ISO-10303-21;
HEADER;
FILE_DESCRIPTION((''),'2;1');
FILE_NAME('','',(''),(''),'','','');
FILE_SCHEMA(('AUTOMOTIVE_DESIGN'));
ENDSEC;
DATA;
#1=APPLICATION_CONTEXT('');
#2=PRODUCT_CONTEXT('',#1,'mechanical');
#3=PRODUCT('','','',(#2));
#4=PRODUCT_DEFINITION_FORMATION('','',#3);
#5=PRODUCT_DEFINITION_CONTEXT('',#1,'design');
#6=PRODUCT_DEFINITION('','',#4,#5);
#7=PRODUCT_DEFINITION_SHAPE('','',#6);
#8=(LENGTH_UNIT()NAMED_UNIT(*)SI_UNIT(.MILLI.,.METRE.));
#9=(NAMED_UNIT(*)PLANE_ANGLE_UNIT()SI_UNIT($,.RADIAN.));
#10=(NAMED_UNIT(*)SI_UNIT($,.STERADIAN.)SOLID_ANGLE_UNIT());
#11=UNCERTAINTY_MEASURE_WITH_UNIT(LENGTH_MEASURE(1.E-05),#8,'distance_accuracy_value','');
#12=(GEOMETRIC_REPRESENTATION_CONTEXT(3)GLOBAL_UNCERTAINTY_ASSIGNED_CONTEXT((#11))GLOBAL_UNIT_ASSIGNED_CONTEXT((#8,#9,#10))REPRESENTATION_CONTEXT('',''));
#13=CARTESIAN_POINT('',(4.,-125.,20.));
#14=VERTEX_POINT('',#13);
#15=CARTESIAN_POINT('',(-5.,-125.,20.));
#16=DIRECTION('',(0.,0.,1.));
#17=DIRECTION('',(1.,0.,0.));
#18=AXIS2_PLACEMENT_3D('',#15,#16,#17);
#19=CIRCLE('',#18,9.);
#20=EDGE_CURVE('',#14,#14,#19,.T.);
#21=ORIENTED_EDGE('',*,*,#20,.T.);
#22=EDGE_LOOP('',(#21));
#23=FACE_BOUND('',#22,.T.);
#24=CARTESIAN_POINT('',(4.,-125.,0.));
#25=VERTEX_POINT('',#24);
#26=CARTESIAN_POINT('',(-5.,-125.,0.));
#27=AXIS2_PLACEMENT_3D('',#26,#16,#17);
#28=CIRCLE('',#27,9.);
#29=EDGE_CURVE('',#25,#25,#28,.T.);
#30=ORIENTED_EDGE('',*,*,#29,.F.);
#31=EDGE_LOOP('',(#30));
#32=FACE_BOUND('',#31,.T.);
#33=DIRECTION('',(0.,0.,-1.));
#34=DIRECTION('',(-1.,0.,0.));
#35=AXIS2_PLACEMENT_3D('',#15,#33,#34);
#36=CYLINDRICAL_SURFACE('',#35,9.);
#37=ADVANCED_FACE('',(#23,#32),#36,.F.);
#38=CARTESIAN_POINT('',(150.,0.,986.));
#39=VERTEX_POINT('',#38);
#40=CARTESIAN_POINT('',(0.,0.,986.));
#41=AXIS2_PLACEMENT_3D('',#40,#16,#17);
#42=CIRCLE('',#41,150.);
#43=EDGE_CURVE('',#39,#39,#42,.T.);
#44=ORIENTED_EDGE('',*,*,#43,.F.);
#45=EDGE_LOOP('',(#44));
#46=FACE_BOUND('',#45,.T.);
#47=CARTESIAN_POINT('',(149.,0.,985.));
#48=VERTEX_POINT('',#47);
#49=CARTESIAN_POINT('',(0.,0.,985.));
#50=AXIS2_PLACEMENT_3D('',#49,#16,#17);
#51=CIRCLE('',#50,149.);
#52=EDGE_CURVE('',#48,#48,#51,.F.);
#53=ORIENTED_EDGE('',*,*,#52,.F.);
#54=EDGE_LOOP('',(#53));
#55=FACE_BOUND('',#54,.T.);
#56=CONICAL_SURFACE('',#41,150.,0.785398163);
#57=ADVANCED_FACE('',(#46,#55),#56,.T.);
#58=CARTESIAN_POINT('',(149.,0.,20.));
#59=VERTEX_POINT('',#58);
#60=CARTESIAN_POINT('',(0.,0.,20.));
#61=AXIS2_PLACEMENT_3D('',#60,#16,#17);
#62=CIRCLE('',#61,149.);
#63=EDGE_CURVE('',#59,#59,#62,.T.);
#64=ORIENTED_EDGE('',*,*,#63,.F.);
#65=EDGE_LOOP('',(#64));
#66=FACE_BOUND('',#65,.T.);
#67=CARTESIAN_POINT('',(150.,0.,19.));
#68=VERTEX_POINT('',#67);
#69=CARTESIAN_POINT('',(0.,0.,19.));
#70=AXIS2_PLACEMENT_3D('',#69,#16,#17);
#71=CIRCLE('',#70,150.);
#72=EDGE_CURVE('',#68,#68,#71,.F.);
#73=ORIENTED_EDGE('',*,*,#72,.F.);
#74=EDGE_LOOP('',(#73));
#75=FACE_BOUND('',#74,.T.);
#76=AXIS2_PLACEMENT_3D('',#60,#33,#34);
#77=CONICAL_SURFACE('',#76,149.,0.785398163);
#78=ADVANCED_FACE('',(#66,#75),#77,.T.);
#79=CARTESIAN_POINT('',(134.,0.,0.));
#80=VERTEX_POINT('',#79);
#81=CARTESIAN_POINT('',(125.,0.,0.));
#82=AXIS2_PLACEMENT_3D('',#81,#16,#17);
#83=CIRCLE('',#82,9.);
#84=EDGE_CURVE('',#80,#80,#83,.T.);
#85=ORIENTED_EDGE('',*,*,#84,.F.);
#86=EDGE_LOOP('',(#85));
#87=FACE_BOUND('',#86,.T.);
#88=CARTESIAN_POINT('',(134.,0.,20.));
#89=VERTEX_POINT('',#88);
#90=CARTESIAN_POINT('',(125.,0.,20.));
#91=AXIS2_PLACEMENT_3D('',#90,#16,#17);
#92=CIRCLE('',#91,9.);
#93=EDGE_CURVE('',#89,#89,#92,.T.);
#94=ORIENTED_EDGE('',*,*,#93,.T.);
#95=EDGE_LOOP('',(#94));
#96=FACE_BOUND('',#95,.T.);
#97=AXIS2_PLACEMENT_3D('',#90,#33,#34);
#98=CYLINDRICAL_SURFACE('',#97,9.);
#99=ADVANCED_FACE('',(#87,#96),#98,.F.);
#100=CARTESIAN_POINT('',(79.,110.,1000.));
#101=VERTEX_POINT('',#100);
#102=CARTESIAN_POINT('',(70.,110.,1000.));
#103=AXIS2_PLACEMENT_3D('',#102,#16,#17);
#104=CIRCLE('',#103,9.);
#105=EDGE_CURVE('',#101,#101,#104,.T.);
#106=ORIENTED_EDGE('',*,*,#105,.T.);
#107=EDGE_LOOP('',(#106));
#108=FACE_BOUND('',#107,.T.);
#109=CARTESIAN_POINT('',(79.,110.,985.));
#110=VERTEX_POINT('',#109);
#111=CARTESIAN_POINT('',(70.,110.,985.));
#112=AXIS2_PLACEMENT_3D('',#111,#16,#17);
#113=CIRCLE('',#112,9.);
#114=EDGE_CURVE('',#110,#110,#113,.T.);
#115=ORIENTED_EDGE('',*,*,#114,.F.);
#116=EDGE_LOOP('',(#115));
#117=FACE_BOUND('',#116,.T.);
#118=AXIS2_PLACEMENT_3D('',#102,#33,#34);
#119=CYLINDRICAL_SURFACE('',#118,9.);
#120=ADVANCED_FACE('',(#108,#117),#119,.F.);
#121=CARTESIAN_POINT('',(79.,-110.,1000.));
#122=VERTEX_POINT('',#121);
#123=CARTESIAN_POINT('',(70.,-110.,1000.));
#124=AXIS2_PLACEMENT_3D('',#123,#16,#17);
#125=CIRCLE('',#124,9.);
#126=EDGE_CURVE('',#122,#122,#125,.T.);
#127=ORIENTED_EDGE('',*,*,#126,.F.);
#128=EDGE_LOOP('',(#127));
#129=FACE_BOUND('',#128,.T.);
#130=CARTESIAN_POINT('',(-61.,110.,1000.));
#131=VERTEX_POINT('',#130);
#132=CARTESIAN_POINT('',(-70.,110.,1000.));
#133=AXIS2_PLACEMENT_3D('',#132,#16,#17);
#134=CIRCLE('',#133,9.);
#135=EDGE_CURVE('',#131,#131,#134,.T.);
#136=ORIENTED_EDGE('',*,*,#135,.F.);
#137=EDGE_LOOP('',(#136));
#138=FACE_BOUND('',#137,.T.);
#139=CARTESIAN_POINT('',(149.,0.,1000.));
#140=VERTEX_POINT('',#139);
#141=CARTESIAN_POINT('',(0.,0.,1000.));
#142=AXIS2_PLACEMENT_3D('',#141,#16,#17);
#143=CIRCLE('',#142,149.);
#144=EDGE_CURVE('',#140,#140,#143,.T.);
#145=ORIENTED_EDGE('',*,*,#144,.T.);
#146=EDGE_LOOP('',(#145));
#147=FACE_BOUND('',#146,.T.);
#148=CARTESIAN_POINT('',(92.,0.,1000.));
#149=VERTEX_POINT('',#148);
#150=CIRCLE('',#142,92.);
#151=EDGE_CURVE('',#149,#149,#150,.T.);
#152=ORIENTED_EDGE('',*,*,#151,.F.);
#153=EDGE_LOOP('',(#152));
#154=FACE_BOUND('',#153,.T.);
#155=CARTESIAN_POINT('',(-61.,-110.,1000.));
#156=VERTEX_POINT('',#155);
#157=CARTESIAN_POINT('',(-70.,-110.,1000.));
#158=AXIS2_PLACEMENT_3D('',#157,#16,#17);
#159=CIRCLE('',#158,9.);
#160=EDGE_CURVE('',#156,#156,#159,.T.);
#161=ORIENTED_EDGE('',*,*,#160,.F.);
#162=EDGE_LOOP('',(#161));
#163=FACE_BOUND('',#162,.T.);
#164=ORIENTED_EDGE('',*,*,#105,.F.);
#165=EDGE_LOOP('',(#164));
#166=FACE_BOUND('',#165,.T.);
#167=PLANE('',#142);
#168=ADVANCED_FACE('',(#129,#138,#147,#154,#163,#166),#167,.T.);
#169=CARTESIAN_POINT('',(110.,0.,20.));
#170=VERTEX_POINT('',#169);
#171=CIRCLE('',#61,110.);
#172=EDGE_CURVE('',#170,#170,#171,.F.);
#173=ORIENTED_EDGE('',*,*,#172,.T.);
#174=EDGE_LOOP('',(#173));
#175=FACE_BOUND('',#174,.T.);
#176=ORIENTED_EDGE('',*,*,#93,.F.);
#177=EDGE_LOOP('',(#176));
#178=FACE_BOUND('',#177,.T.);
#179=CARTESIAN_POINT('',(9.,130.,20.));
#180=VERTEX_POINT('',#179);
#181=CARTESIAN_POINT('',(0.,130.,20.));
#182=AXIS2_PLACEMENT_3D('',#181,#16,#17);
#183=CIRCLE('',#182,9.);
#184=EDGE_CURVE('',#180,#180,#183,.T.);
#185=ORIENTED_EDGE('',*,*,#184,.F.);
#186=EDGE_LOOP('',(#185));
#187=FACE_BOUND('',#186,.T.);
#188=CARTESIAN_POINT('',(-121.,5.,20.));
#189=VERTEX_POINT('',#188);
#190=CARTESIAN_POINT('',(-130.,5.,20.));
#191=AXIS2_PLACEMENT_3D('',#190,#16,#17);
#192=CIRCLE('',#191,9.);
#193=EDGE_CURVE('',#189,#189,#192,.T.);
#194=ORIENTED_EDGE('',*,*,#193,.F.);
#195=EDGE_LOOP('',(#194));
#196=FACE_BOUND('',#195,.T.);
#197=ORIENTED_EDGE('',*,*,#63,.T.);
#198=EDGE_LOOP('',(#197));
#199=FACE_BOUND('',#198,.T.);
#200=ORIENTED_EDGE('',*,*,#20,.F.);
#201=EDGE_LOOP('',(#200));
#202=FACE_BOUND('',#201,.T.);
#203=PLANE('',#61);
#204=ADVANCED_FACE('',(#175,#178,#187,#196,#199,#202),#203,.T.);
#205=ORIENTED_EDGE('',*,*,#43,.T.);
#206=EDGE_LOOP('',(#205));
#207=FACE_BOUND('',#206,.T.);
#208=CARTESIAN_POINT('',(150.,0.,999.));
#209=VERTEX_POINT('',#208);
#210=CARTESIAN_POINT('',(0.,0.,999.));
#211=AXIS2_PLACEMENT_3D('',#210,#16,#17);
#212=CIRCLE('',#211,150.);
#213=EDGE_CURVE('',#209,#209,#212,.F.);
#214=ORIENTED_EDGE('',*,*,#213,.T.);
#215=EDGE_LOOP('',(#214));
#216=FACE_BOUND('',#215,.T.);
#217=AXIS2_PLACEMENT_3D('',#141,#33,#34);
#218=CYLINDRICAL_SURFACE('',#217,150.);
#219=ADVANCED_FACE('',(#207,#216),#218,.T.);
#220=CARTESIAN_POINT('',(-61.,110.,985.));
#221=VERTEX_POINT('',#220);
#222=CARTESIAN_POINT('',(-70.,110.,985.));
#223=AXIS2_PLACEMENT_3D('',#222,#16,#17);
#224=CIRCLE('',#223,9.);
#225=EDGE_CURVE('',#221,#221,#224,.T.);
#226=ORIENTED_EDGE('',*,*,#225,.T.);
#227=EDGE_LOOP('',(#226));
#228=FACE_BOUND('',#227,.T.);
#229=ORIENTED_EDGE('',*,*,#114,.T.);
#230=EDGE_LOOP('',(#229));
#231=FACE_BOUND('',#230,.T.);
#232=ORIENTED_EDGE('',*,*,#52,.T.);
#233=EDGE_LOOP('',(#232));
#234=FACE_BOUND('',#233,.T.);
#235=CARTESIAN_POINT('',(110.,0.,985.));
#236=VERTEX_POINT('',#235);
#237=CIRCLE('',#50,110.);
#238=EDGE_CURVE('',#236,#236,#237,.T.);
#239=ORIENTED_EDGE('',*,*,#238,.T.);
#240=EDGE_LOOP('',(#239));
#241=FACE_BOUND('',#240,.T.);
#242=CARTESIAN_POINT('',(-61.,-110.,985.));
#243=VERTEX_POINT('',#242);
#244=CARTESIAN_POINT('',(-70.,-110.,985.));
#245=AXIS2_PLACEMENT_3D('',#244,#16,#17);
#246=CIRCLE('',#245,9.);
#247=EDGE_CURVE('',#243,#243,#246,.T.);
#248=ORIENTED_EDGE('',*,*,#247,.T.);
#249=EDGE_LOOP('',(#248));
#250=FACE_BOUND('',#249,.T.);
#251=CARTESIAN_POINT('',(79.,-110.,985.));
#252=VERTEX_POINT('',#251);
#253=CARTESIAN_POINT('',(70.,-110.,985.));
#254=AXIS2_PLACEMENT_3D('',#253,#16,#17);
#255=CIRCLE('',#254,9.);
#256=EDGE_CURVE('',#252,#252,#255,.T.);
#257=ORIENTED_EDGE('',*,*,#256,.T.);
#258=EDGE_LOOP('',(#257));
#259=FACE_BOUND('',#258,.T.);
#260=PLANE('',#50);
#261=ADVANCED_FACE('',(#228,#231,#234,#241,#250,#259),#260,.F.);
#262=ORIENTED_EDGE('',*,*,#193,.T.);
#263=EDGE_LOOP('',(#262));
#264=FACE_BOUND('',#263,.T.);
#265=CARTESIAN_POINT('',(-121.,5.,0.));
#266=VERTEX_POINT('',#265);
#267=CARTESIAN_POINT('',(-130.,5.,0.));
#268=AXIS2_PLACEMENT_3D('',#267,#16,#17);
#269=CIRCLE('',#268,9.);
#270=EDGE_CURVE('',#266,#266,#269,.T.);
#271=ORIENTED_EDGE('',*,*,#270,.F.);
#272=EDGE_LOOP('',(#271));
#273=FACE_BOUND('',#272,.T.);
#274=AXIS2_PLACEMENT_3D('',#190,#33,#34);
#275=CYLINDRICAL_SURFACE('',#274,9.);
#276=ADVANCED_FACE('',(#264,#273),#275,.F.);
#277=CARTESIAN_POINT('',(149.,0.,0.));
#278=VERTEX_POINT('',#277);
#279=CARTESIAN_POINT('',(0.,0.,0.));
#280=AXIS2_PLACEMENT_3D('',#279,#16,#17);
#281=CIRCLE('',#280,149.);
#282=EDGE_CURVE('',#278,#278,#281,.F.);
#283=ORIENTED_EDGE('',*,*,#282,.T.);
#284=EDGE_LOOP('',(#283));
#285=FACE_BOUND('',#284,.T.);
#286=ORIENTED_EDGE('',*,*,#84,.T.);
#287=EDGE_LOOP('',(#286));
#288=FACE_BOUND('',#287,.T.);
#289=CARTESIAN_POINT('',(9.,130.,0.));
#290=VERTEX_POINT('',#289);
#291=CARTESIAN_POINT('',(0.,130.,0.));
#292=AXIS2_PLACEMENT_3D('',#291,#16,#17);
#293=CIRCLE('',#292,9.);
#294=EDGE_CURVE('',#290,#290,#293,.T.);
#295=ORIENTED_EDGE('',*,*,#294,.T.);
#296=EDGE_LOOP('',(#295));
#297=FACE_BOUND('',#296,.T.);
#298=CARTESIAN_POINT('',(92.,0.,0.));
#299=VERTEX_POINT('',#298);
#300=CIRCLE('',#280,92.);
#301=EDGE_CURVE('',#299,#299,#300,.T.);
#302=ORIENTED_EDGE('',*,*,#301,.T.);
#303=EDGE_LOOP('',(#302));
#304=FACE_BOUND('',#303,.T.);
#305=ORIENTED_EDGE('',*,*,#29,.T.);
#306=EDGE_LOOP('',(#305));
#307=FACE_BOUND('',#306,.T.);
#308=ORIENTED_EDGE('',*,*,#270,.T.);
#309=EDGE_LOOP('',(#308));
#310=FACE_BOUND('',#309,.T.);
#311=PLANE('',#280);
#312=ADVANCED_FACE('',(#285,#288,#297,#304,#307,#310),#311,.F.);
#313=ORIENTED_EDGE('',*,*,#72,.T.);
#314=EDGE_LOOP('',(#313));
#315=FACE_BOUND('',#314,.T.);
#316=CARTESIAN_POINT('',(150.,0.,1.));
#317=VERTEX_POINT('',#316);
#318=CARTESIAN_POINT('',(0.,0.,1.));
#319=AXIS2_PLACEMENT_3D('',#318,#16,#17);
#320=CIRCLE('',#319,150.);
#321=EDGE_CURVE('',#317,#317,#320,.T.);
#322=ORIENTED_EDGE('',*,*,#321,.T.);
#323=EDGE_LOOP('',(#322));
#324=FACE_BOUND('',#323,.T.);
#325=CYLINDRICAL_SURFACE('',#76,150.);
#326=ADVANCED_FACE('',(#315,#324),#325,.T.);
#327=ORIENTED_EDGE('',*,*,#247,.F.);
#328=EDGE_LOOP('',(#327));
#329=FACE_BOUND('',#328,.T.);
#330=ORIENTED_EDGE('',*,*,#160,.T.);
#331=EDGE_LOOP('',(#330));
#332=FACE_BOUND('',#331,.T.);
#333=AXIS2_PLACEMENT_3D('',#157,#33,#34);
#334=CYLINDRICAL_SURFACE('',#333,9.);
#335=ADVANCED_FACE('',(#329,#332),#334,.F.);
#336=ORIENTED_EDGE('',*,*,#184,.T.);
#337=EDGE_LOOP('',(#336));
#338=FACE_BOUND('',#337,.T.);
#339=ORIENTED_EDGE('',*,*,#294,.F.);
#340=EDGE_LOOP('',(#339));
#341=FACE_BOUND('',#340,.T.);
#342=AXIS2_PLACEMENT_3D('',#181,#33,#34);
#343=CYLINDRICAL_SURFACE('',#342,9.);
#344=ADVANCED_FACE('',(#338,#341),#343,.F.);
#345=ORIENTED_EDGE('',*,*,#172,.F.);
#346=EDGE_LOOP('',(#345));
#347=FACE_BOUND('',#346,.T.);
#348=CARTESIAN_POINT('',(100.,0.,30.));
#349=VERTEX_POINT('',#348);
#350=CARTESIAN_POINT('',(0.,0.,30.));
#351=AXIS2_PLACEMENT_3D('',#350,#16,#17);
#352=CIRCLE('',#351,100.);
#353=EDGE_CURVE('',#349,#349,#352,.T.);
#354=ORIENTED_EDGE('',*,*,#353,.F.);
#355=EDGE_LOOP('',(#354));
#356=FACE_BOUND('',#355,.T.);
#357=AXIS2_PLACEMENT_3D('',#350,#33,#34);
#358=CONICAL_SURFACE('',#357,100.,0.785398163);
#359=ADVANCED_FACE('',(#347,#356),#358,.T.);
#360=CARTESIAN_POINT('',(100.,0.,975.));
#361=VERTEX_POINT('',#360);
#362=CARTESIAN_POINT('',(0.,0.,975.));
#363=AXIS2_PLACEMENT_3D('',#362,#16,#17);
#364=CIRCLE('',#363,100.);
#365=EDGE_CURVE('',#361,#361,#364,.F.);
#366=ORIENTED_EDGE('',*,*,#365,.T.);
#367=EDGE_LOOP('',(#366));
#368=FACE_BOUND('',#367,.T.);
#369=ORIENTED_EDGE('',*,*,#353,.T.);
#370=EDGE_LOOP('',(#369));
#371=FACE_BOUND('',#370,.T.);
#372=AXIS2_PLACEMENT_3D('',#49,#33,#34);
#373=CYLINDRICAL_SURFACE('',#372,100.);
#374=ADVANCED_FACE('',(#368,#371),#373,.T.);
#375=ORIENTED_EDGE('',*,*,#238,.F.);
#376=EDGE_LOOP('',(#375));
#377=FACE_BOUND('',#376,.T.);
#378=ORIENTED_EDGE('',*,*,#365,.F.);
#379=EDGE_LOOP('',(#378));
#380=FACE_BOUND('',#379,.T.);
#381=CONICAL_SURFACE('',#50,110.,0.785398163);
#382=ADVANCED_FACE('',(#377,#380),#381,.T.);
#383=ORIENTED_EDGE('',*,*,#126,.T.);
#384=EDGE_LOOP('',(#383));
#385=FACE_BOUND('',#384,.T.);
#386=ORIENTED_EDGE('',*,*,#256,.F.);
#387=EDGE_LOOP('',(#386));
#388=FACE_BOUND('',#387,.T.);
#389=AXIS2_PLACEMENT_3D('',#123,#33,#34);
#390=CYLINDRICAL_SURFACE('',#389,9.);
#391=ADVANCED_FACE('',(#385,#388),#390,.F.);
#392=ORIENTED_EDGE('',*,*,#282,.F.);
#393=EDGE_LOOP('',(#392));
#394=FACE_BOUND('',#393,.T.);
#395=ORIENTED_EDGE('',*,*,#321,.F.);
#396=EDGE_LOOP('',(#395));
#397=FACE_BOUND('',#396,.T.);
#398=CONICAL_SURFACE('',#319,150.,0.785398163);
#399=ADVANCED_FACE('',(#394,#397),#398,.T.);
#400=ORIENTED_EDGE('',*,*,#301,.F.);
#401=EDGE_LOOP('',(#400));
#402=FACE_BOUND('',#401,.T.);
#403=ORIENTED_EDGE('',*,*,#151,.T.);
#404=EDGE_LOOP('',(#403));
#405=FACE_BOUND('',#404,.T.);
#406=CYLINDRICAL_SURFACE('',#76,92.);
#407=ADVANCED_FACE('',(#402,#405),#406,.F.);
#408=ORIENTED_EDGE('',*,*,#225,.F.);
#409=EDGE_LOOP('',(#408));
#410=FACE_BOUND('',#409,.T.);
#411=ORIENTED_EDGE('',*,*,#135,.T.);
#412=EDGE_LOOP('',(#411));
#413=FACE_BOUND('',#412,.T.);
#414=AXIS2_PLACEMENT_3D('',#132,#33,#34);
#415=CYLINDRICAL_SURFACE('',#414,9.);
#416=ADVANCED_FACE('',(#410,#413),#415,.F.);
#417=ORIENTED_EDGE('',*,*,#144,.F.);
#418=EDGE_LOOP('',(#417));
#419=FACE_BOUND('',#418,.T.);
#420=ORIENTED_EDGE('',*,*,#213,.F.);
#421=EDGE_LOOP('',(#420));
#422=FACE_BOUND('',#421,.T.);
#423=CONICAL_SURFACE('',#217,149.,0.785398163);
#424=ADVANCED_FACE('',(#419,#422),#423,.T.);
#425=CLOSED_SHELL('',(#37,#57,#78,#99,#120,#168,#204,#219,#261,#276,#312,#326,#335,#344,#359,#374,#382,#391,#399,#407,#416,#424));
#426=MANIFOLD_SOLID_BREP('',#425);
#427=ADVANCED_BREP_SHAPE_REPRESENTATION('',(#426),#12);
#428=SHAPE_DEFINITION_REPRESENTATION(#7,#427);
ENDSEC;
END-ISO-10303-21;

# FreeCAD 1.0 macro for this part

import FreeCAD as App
import Part
import Sketcher
from FreeCAD import Vector


def edges_at(feature, points):
    """Names of the edges that pass closest to the given points."""
    edges = feature.Shape.Edges
    near = lambda p: min(range(len(edges)), key=lambda i: edges[i].distToShape(Part.Vertex(*p))[0])
    return sorted({f"Edge{near(p) + 1}" for p in points})

doc = App.newDocument("Part")
body = doc.addObject("PartDesign::Body", "Body")

# Sketch on XY plane
sketch1 = body.newObject("Sketcher::SketchObject", "Sketch")
sketch1.AttachmentSupport = (doc.getObject("XY_Plane"), [""])
sketch1.MapMode = "FlatFace"
sketch1.addGeometry([
    Part.Circle(Vector(0, 0, 0), Vector(0, 0, 1), 150),  # 0
    Part.Circle(Vector(-5, -125, 0), Vector(0, 0, 1), 9),  # 1
    Part.Circle(Vector(0, 0, 0), Vector(0, 0, 1), 92),  # 2
    Part.Circle(Vector(125, 0, 0), Vector(0, 0, 1), 9),  # 3
    Part.Circle(Vector(-130, 5, 0), Vector(0, 0, 1), 9),  # 4
    Part.Circle(Vector(0, 130, 0), Vector(0, 0, 1), 9),  # 5
], False)
sketch1.addConstraint([
    Sketcher.Constraint("Coincident", 0, 3, -1, 1),
    Sketcher.Constraint("Coincident", 2, 3, -1, 1),
    Sketcher.Constraint("Equal", 1, 3),
    Sketcher.Constraint("Equal", 3, 4),
    Sketcher.Constraint("Equal", 4, 5),
    Sketcher.Constraint("PointOnObject", 3, 3, -1),
    Sketcher.Constraint("PointOnObject", 5, 3, -2),
    Sketcher.Constraint("Diameter", 0, 300.0),
    Sketcher.Constraint("Diameter", 1, 18.0),
    Sketcher.Constraint("Diameter", 2, 184.0),
    Sketcher.Constraint("DistanceX", 1, 3, -1, 1, 5.0),
    Sketcher.Constraint("DistanceY", 1, 3, -1, 1, 125.0),
    Sketcher.Constraint("DistanceX", -1, 1, 3, 3, 125.0),
    Sketcher.Constraint("DistanceX", 4, 3, -1, 1, 130.0),
    Sketcher.Constraint("DistanceY", -1, 1, 4, 3, 5.0),
    Sketcher.Constraint("DistanceY", -1, 1, 5, 3, 130.0),
])
pad1 = body.newObject("PartDesign::Pad", "Pad")
pad1.Profile = sketch1
pad1.Length = 20

# Sketch on XY plane
sketch2 = body.newObject("Sketcher::SketchObject", "Sketch001")
sketch2.AttachmentSupport = (doc.getObject("XY_Plane"), [""])
sketch2.MapMode = "FlatFace"
sketch2.AttachmentOffset = App.Placement(Vector(0, 0, 20), App.Rotation())
sketch2.addGeometry([
    Part.Circle(Vector(0, 0, 0), Vector(0, 0, 1), 100),
    Part.Circle(Vector(0, 0, 0), Vector(0, 0, 1), 92),
], False)
sketch2.addConstraint([
    Sketcher.Constraint("Coincident", 0, 3, -1, 1),
    Sketcher.Constraint("Coincident", 1, 3, -1, 1),
    Sketcher.Constraint("Diameter", 0, 200.0),
    Sketcher.Constraint("Diameter", 1, 184.0),
])
pad2 = body.newObject("PartDesign::Pad", "Pad001")
pad2.Profile = sketch2
pad2.Length = 965

# Sketch on XY plane
sketch3 = body.newObject("Sketcher::SketchObject", "Sketch002")
sketch3.AttachmentSupport = (doc.getObject("XY_Plane"), [""])
sketch3.MapMode = "FlatFace"
sketch3.AttachmentOffset = App.Placement(Vector(0, 0, 985), App.Rotation())
sketch3.addGeometry([
    Part.Circle(Vector(0, 0, 0), Vector(0, 0, 1), 150),  # 0
    Part.Circle(Vector(-70, -110, 0), Vector(0, 0, 1), 9),  # 1
    Part.Circle(Vector(70, -110, 0), Vector(0, 0, 1), 9),  # 2
    Part.Circle(Vector(-70, 110, 0), Vector(0, 0, 1), 9),  # 3
    Part.Circle(Vector(0, 0, 0), Vector(0, 0, 1), 92),  # 4
    Part.Circle(Vector(70, 110, 0), Vector(0, 0, 1), 9),  # 5
], False)
sketch3.addConstraint([
    Sketcher.Constraint("Coincident", 0, 3, -1, 1),
    Sketcher.Constraint("Coincident", 4, 3, -1, 1),
    Sketcher.Constraint("Equal", 1, 2),
    Sketcher.Constraint("Equal", 2, 3),
    Sketcher.Constraint("Equal", 3, 5),
    Sketcher.Constraint("Symmetric", 2, 3, 3, 3, -1, 1),
    Sketcher.Constraint("Symmetric", 1, 3, 5, 3, -1, 1),
    Sketcher.Constraint("Symmetric", 1, 3, 2, 3, -2),
    Sketcher.Constraint("Diameter", 0, 300.0),
    Sketcher.Constraint("Diameter", 1, 18.0),
    Sketcher.Constraint("Diameter", 4, 184.0),
    Sketcher.Constraint("DistanceX", 1, 3, -1, 1, 70.0),
    Sketcher.Constraint("DistanceY", 1, 3, -1, 1, 110.0),
])
pad3 = body.newObject("PartDesign::Pad", "Pad002")
pad3.Profile = sketch3
pad3.Length = 15
doc.recompute()

chamfer = body.newObject("PartDesign::Chamfer", "Chamfer")
chamfer.Base = (pad3, edges_at(pad3, [(-100, 0, 985), (-100, 0, 20)]))
chamfer.Size = 10
doc.recompute()

chamfer2 = body.newObject("PartDesign::Chamfer", "Chamfer001")
chamfer2.Base = (chamfer, edges_at(chamfer, [
    (-150, 0, 0),
    (-150, 0, 1000),
    (-150, 0, 985),
    (-150, 0, 20),
]))
chamfer2.Size = 1

doc.recompute()
